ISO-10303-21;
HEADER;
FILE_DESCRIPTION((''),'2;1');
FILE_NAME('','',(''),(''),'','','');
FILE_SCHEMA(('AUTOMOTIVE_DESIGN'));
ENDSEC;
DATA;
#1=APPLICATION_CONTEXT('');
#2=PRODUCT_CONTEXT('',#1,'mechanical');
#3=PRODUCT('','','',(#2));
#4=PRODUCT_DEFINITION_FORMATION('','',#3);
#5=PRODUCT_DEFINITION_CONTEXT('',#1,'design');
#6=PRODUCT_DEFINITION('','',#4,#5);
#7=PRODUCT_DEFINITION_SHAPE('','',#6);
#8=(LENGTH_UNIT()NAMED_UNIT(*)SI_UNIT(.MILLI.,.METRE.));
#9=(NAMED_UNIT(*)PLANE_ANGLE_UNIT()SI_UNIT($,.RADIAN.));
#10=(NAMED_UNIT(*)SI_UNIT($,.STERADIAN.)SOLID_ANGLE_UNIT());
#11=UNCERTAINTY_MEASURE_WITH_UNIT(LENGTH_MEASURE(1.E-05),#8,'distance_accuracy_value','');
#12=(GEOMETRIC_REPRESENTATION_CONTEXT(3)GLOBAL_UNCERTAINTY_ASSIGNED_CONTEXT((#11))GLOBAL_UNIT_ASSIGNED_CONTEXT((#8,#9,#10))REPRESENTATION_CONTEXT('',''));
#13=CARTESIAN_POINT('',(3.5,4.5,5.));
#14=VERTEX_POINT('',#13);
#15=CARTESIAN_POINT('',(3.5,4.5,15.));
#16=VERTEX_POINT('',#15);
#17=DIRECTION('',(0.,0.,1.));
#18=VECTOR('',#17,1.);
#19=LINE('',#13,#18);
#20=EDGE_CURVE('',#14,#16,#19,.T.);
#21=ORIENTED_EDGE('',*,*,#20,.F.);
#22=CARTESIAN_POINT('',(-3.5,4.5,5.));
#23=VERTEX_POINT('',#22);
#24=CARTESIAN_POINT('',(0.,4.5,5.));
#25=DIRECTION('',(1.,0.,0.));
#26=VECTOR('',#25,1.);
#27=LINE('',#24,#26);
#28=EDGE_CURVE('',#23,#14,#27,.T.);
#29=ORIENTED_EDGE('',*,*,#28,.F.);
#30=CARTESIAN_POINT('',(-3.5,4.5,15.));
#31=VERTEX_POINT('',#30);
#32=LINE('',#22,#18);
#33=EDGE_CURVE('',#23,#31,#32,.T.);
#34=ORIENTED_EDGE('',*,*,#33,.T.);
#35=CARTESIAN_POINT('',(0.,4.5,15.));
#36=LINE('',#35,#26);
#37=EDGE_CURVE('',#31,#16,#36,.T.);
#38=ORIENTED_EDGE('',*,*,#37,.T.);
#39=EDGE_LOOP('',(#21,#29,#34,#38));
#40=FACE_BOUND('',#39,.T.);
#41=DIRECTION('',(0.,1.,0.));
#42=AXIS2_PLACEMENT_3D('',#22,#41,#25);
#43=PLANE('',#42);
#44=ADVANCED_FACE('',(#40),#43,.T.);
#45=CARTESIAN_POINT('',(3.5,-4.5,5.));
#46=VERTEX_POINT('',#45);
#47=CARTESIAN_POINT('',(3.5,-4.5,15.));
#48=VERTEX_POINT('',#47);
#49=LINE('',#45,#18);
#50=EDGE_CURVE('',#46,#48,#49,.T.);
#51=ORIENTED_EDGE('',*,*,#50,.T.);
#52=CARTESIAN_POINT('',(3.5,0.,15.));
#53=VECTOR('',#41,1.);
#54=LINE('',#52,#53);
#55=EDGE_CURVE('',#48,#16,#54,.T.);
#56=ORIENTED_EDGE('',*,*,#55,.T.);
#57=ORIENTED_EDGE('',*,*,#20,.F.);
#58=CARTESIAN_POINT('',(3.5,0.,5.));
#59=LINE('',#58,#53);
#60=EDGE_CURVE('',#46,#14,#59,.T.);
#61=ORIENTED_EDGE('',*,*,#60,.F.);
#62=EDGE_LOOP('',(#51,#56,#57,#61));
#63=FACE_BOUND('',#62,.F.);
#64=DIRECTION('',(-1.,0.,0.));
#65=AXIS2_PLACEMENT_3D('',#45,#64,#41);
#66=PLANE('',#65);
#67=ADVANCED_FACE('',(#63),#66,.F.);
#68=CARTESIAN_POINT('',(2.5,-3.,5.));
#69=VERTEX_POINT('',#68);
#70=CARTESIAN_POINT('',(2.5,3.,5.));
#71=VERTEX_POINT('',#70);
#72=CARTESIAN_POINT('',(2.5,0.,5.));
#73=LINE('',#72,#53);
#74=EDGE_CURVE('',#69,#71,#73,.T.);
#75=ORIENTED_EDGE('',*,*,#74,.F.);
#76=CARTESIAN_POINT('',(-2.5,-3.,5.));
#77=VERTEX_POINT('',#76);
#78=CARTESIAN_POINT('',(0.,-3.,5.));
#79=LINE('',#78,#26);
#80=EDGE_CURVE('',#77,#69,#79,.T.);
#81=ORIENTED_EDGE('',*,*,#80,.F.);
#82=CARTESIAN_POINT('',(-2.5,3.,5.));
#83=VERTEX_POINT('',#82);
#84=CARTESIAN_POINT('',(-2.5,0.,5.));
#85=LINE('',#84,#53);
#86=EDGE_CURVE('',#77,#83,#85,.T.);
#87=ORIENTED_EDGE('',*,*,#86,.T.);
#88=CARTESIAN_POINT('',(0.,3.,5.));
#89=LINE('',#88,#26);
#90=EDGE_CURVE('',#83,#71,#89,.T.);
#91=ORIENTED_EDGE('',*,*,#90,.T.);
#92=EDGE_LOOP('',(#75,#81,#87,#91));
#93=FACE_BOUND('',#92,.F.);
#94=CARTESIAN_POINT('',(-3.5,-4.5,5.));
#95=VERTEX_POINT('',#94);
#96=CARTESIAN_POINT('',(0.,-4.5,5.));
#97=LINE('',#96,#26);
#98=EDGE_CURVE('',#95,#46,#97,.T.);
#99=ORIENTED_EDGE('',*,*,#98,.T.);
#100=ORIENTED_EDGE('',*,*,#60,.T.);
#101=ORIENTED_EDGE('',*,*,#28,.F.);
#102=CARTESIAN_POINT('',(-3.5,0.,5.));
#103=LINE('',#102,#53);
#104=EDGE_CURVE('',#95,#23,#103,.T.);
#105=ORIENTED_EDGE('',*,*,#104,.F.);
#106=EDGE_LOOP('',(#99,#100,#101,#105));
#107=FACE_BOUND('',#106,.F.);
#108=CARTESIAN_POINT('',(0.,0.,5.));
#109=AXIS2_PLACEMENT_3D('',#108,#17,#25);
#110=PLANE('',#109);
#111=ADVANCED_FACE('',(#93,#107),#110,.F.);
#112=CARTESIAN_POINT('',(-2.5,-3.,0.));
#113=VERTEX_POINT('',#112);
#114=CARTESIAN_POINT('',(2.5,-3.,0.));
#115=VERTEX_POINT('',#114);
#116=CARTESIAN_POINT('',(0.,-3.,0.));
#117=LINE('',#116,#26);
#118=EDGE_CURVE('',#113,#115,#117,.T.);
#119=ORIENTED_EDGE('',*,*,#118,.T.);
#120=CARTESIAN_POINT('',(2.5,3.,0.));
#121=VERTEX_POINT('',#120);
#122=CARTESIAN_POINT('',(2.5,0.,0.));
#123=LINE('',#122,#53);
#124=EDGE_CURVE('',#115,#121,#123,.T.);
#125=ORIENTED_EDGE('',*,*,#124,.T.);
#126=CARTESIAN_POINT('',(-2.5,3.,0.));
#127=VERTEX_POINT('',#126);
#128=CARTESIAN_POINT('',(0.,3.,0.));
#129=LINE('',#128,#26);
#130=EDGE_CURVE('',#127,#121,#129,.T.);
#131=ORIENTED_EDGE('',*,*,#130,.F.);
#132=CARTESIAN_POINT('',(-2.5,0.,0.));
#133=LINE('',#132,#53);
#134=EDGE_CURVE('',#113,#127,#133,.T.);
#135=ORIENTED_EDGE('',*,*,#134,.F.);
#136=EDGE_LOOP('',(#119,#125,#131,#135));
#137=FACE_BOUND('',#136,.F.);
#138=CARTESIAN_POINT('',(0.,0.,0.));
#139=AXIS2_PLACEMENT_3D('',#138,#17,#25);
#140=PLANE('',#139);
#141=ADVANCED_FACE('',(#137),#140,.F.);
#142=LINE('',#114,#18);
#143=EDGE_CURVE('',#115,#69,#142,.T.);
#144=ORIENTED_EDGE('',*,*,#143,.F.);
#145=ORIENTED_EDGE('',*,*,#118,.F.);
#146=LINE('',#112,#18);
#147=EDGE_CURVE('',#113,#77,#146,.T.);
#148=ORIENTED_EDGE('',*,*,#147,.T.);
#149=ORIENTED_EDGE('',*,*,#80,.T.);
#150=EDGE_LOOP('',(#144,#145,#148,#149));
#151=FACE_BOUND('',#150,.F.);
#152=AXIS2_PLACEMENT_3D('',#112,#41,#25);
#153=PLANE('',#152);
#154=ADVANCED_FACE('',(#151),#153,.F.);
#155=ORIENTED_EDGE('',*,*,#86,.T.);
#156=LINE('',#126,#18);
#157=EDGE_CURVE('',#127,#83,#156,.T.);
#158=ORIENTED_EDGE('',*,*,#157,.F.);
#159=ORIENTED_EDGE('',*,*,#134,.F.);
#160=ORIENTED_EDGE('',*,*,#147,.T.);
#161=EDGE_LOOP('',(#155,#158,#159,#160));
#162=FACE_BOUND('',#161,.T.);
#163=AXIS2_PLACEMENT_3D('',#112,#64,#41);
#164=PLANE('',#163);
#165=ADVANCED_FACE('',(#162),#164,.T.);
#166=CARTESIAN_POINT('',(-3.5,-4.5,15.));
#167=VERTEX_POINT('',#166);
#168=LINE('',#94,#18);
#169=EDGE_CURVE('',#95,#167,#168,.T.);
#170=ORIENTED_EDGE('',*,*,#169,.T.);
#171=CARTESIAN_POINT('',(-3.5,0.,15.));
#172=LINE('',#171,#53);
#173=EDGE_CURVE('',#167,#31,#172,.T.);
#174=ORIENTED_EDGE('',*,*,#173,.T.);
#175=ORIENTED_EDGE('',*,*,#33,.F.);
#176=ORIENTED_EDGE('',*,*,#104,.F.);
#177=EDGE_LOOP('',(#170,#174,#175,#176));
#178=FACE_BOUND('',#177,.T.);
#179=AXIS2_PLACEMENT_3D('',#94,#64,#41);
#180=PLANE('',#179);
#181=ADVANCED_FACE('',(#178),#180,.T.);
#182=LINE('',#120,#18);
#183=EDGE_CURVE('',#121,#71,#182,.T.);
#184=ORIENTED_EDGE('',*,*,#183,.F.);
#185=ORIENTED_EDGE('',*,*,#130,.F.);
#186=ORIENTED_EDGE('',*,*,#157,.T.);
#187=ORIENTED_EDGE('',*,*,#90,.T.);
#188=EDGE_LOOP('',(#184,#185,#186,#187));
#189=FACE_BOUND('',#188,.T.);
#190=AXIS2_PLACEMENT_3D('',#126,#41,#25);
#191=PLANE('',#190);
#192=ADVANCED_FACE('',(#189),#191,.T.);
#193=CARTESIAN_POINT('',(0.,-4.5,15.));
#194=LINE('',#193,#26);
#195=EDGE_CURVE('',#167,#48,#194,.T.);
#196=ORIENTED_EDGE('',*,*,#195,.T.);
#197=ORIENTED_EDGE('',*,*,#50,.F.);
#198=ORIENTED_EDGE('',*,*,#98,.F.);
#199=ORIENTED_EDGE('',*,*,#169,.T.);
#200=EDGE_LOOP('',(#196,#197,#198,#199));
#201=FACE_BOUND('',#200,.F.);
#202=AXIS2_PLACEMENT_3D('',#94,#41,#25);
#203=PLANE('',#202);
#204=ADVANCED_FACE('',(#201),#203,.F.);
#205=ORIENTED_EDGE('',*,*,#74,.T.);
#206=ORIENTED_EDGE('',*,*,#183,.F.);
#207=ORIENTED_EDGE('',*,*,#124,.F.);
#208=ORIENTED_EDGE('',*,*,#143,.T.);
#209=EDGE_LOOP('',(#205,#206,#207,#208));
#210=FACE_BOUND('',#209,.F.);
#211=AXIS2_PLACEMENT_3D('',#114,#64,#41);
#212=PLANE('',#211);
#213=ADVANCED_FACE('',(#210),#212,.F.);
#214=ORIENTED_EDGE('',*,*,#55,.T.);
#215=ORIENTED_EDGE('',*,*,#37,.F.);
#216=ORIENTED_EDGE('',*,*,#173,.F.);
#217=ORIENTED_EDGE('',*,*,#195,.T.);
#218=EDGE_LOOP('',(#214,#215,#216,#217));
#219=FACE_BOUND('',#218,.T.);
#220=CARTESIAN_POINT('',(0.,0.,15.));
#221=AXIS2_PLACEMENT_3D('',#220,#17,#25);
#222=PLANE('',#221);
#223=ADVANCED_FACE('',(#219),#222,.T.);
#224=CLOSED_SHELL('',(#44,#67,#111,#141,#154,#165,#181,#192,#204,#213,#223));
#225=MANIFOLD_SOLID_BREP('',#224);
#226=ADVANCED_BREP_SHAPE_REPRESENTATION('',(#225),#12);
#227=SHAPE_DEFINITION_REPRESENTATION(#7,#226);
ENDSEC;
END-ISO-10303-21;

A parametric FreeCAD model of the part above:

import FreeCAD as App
import Part
import Sketcher


def add_polygon(sketch, points):
    """Adds a closed chain of lines whose ends are joined by coincident constraints."""
    first, n = sketch.GeometryCount, len(points)
    for a, b in zip(points, points[1:] + points[:1]):
        sketch.addGeometry(Part.LineSegment(App.Vector(*a, 0), App.Vector(*b, 0)), False)
    for i in range(n):
        sketch.addConstraint(Sketcher.Constraint("Coincident", first + i, 2, first + (i + 1) % n, 1))

doc = App.newDocument("Part")
body = doc.addObject("PartDesign::Body", "Body")

sketch1 = body.newObject("Sketcher::SketchObject", "Sketch")
sketch1.AttachmentSupport = (doc.getObject("XY_Plane"), [""])
sketch1.MapMode = "FlatFace"
add_polygon(sketch1, [(-2, 3), (-2, -3), (2, -3), (2, 3)])
sketch1.addConstraint([
    Sketcher.Constraint("Vertical", 0),
    Sketcher.Constraint("Horizontal", 1),
    Sketcher.Constraint("Vertical", 2),
    Sketcher.Constraint("Horizontal", 3),
    Sketcher.Constraint("Symmetric", 0, 2, 2, 2, -1, 1),
    Sketcher.Constraint("DistanceX", 1, 1, 1, 2, 5.0),
    Sketcher.Constraint("DistanceY", 0, 2, 0, 1, 6.0),
])
pad1 = body.newObject("PartDesign::Pad", "Pad")
pad1.Profile = sketch1
pad1.Length = 5

sketch2 = body.newObject("Sketcher::SketchObject", "Sketch001")
sketch2.AttachmentSupport = (doc.getObject("XY_Plane"), [""])
sketch2.MapMode = "FlatFace"
sketch2.AttachmentOffset = App.Placement(App.Vector(0, 0, 5), App.Rotation())
add_polygon(sketch2, [(-4, 4), (-4, -4), (4, -4), (4, 4)])
sketch2.addConstraint([
    Sketcher.Constraint("Vertical", 0),
    Sketcher.Constraint("Horizontal", 1),
    Sketcher.Constraint("Vertical", 2),
    Sketcher.Constraint("Horizontal", 3),
    Sketcher.Constraint("Symmetric", 0, 2, 2, 2, -1, 1),
    Sketcher.Constraint("DistanceX", 1, 1, 1, 2, 7.0),
    Sketcher.Constraint("DistanceY", 0, 2, 0, 1, 9.0),
])
pad2 = body.newObject("PartDesign::Pad", "Pad001")
pad2.Profile = sketch2
pad2.Length = 10

doc.recompute()
